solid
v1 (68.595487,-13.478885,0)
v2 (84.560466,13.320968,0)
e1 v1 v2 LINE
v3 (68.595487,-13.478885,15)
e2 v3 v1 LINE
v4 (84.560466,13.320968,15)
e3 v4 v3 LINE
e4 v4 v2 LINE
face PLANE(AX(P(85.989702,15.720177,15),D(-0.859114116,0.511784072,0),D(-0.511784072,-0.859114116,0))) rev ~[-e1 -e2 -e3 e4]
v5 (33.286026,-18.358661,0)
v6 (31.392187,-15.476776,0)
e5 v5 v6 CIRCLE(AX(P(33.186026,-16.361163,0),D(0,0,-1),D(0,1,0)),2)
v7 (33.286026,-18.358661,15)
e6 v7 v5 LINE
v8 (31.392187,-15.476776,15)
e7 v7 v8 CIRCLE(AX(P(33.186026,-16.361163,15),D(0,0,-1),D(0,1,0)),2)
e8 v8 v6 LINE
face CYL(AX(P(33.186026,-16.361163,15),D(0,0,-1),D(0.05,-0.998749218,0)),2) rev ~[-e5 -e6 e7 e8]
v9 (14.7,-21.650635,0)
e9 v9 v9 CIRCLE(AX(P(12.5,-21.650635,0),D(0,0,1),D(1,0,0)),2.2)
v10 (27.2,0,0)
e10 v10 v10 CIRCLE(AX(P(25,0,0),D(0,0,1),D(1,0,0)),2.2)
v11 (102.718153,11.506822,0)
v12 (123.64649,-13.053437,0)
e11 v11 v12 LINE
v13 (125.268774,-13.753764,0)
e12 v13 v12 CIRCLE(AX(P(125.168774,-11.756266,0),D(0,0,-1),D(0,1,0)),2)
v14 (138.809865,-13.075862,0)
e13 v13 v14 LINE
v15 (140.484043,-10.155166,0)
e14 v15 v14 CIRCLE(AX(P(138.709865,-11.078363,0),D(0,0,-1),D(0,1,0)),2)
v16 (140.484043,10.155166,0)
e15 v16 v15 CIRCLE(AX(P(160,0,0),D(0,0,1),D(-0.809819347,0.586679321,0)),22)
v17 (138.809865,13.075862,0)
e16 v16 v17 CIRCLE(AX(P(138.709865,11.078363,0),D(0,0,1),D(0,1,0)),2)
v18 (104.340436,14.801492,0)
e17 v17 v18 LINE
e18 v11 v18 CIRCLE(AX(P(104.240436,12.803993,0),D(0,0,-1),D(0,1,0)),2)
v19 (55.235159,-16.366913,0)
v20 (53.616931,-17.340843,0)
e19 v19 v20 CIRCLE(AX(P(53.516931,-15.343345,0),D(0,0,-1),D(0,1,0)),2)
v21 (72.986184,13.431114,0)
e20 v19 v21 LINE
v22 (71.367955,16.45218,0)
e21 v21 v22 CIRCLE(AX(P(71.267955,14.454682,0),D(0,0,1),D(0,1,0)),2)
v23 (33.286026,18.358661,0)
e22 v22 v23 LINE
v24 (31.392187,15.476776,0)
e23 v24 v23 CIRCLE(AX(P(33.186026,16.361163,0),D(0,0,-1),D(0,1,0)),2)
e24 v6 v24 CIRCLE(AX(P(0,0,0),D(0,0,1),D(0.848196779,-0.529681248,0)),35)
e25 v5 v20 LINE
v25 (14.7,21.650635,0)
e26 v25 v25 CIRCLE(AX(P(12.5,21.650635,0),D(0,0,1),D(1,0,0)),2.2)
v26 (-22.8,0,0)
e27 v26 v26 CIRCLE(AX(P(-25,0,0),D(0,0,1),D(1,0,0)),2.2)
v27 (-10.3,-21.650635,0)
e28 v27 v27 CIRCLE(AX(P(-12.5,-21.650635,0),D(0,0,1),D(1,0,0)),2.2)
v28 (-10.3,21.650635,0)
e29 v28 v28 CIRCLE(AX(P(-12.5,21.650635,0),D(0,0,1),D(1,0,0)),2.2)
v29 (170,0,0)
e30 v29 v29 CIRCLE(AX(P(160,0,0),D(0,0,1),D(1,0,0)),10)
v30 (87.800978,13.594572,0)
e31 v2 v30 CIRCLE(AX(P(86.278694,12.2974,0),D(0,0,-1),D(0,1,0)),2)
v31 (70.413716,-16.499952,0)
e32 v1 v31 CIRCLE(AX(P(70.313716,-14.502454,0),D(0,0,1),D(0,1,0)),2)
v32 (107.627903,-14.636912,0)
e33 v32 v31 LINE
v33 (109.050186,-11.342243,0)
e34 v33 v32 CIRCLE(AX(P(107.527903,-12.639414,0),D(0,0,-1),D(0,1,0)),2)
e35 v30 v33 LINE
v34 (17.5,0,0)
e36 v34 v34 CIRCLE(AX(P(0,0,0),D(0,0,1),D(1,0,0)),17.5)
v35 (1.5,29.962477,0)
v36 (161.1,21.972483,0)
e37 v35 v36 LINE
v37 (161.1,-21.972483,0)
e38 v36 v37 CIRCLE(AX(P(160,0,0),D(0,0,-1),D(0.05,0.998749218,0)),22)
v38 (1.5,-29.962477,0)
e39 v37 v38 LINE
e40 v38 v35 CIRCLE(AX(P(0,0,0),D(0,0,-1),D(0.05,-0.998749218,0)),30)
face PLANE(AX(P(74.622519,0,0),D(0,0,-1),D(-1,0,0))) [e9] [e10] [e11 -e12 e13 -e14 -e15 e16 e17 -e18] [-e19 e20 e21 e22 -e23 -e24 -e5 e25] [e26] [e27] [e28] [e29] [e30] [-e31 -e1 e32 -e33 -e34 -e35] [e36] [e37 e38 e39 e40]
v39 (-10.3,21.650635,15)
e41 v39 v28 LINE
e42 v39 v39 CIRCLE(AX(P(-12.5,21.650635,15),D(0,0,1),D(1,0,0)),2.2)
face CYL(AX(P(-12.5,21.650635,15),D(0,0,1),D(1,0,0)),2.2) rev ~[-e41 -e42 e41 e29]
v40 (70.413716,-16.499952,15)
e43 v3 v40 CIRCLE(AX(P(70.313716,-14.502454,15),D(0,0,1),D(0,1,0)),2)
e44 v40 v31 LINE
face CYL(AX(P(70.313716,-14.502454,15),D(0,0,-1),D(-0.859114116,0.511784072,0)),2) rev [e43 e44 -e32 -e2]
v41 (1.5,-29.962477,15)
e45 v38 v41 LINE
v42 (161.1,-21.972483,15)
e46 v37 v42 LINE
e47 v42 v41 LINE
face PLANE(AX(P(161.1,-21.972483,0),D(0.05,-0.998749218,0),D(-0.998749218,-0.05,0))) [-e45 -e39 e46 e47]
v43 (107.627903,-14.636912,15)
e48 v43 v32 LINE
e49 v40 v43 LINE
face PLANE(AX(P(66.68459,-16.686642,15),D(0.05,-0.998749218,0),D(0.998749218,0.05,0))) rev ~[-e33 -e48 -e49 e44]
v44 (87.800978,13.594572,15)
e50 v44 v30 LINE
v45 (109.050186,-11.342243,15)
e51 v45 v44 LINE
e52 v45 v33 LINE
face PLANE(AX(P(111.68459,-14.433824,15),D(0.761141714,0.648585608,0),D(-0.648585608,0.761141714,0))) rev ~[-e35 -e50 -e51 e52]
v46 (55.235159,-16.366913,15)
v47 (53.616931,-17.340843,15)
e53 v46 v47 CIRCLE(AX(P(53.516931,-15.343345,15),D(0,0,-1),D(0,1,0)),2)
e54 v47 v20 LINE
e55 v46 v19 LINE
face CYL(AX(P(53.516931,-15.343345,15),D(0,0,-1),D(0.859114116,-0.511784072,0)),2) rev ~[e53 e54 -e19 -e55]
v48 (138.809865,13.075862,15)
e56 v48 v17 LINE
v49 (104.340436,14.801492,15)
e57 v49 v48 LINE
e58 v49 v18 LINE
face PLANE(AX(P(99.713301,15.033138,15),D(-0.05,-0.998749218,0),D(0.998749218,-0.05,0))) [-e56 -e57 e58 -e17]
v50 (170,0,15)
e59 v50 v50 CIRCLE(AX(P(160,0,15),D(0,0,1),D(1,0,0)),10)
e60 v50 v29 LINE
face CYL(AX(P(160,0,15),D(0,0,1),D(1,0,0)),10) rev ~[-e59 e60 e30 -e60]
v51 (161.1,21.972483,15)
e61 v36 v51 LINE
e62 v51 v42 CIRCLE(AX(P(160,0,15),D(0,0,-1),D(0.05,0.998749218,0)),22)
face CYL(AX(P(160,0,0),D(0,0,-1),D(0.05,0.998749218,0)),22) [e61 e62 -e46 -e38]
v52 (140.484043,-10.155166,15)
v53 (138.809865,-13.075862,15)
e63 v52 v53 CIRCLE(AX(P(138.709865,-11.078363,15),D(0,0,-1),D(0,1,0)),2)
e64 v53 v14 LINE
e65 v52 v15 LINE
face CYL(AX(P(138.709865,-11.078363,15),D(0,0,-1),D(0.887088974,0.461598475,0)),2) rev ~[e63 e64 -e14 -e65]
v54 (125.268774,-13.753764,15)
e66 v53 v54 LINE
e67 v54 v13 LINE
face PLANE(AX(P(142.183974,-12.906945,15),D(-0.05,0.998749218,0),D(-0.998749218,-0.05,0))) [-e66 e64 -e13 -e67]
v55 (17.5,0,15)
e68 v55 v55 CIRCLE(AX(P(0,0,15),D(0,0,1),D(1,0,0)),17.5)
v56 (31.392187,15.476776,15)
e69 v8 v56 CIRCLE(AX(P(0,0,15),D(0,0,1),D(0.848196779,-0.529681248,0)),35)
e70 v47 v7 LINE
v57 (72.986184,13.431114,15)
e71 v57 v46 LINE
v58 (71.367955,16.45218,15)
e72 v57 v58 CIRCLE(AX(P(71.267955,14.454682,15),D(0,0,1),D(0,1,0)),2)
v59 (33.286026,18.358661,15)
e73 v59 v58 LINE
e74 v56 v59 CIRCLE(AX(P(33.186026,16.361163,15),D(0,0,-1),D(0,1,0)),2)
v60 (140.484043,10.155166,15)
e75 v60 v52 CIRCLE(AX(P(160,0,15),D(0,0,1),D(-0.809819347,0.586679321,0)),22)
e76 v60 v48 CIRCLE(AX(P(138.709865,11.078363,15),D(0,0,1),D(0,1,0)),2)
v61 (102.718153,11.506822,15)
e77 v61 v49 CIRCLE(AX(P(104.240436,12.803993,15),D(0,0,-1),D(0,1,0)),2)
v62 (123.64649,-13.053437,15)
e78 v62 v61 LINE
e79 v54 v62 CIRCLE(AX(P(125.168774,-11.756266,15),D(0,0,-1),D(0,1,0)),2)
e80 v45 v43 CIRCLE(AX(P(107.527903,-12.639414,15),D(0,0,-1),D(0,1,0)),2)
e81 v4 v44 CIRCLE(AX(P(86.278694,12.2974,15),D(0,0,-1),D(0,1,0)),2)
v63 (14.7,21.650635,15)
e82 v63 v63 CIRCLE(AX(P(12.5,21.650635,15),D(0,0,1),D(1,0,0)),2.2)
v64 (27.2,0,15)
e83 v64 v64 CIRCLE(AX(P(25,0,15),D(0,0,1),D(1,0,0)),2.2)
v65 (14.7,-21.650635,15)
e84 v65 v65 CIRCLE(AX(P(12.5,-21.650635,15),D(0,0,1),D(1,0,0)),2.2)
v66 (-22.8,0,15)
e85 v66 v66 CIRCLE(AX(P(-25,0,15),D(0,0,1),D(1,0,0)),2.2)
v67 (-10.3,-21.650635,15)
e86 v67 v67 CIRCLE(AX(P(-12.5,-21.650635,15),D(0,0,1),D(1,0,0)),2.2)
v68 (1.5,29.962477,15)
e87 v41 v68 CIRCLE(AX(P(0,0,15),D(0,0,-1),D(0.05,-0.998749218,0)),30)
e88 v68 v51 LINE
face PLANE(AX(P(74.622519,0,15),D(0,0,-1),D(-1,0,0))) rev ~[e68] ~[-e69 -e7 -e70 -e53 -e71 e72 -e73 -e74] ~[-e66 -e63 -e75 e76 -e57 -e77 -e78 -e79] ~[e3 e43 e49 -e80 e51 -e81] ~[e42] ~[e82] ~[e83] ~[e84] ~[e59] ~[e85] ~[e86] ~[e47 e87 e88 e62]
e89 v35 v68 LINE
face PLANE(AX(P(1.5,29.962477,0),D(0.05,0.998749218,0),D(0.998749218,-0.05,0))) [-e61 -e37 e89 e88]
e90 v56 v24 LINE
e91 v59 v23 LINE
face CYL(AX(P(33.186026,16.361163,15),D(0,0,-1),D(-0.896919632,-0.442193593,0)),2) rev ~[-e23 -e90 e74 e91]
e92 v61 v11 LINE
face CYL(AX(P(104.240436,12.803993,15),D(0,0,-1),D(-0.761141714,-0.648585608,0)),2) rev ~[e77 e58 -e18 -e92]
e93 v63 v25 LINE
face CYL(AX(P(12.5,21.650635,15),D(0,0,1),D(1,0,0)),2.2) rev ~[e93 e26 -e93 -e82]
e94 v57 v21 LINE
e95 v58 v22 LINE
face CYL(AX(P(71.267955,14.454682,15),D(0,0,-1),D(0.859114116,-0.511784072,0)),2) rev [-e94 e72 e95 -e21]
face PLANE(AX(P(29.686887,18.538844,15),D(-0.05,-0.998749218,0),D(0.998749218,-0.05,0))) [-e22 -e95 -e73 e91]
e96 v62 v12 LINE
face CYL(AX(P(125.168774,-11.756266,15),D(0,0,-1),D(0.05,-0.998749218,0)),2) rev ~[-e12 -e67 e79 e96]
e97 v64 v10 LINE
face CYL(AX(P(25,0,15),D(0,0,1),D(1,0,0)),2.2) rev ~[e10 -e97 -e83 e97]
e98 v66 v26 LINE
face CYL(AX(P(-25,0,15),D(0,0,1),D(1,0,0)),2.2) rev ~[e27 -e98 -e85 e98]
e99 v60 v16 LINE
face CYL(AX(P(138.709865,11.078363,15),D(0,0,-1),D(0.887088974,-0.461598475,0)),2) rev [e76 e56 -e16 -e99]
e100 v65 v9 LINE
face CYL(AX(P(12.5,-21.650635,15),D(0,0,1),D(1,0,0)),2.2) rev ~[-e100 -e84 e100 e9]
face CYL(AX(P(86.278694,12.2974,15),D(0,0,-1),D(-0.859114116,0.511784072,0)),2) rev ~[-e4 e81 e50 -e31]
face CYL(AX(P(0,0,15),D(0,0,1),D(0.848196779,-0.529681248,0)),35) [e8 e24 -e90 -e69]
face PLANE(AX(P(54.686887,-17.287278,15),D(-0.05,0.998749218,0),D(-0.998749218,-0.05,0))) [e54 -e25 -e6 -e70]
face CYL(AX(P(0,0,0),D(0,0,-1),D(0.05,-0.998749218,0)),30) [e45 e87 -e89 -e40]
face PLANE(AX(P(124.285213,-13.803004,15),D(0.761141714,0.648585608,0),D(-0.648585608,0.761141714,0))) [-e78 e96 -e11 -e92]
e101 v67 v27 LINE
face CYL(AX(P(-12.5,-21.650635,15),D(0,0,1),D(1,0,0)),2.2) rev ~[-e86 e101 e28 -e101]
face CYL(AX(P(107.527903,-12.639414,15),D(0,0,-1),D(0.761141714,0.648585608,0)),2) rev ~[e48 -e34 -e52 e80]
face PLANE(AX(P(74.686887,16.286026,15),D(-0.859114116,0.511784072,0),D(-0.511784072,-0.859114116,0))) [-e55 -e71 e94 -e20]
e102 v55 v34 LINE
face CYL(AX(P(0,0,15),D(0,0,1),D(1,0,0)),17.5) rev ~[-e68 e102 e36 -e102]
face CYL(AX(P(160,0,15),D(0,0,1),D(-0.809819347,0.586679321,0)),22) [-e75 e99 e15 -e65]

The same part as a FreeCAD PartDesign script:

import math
import FreeCAD as App
import Part
import Sketcher
from FreeCAD import Vector


def edges_at(feature, points):
    """Names of the edges that pass closest to the given points."""
    edges = feature.Shape.Edges
    near = lambda p: min(range(len(edges)), key=lambda i: edges[i].distToShape(Part.Vertex(*p))[0])
    return sorted({f"Edge{near(p) + 1}" for p in points})


def add_polygon(sketch, points):
    """Adds a closed chain of lines whose ends are joined by coincident constraints."""
    first, n = sketch.GeometryCount, len(points)
    for a, b in zip(points, points[1:] + points[:1]):
        sketch.addGeometry(Part.LineSegment(App.Vector(*a, 0), App.Vector(*b, 0)), False)
    for i in range(n):
        sketch.addConstraint(Sketcher.Constraint("Coincident", first + i, 2, first + (i + 1) % n, 1))

doc = App.newDocument("Part")
body = doc.addObject("PartDesign::Body", "Body")

# Sketch on XY plane
sketch1 = doc.addObject("Sketcher::SketchObject", "Sketch")
body.addObject(sketch1)
sketch1.AttachmentSupport = (doc.XY_Plane, [""])
sketch1.MapMode = "FlatFace"
sketch1.addGeometry([
    Part.LineSegment(Vector(161, 22, 0), Vector(2, 30, 0)),
    Part.ArcOfCircle(Part.Circle(Vector(0, 0, 0), Vector(0, 0, 1), 30), math.radians(87), math.radians(273)),
    Part.LineSegment(Vector(2, -30, 0), Vector(161, -22, 0)),
    Part.ArcOfCircle(Part.Circle(Vector(160, 0, 0), Vector(0, 0, 1), 22), math.radians(-87), math.radians(87)),
], False)
sketch1.addConstraint([
    Sketcher.Constraint("Tangent", 0, 2, 1, 1),
    Sketcher.Constraint("Tangent", 1, 2, 2, 1),
    Sketcher.Constraint("Tangent", 2, 2, 3, 1),
    Sketcher.Constraint("Tangent", 3, 2, 0, 1),
    Sketcher.Constraint("Coincident", 1, 3, -1, 1),
    Sketcher.Constraint("PointOnObject", 3, 3, -1),
    Sketcher.Constraint("Radius", 1, 30.0),
    Sketcher.Constraint("Radius", 3, 22.0),
    Sketcher.Constraint("DistanceX", -1, 1, 3, 3, 160.0),
])
pad1 = doc.addObject("PartDesign::Pad", "Pad")
body.addObject(pad1)
pad1.Profile = sketch1
pad1.Length = 15

# Sketch on XY plane
sketch2 = doc.addObject("Sketcher::SketchObject", "Sketch001")
body.addObject(sketch2)
sketch2.AttachmentSupport = (doc.XY_Plane, [""])
sketch2.MapMode = "FlatFace"
sketch2.AttachmentOffset = App.Placement(Vector(0, 0, 15), App.Rotation())
sketch2.addGeometry([
    Part.Circle(Vector(-25, 0, 0), Vector(0, 0, 1), 2.2),  # 0
    Part.Circle(Vector(-12.5, 21.7, 0), Vector(0, 0, 1), 2.2),  # 1
    Part.Circle(Vector(12.5, 21.7, 0), Vector(0, 0, 1), 2.2),  # 2
    Part.Circle(Vector(25, 0, 0), Vector(0, 0, 1), 2.2),  # 3
    Part.Circle(Vector(12.5, -21.7, 0), Vector(0, 0, 1), 2.2),  # 4
    Part.Circle(Vector(-12.5, -21.7, 0), Vector(0, 0, 1), 2.2),  # 5
    Part.Circle(Vector(160, 0, 0), Vector(0, 0, 1), 10),  # 6
], False)
sketch2.addConstraint([
    Sketcher.Constraint("Equal", 0, 1),
    Sketcher.Constraint("Equal", 1, 2),
    Sketcher.Constraint("Equal", 2, 3),
    Sketcher.Constraint("Equal", 3, 4),
    Sketcher.Constraint("Equal", 4, 5),
    Sketcher.Constraint("Symmetric", 0, 3, 3, 3, -1, 1),
    Sketcher.Constraint("Symmetric", 1, 3, 4, 3, -1, 1),
    Sketcher.Constraint("Symmetric", 2, 3, 5, 3, -1, 1),
    Sketcher.Constraint("Symmetric", 1, 3, 2, 3, -2),
    Sketcher.Constraint("PointOnObject", 0, 3, -1),
    Sketcher.Constraint("PointOnObject", 6, 3, -1),
    Sketcher.Constraint("Diameter", 6, 20.0),
    Sketcher.Constraint("Diameter", 0, 4.4),
    Sketcher.Constraint("DistanceX", 0, 3, -1, 1, 25.0),
    Sketcher.Constraint("DistanceX", -1, 1, 6, 3, 160.0),
    Sketcher.Constraint("DistanceX", 1, 3, 2, 3, 25.0),
    Sketcher.Constraint("DistanceY", 4, 3, 2, 3, 43.30127),
])
pocket1 = doc.addObject("PartDesign::Pocket", "Pocket")
body.addObject(pocket1)
pocket1.Profile = sketch2
pocket1.Type = "ThroughAll"

# Sketch on XY plane
sketch3 = doc.addObject("Sketcher::SketchObject", "Sketch002")
body.addObject(sketch3)
sketch3.AttachmentSupport = (doc.XY_Plane, [""])
sketch3.MapMode = "FlatFace"
sketch3.AttachmentOffset = App.Placement(Vector(0, 0, 15), App.Rotation())
sketch3.addGeometry(Part.Circle(Vector(0, 0, 0), Vector(0, 0, 1), 18), False)  # 0
sketch3.addGeometry(Part.LineSegment(Vector(75, 16, 0), Vector(30, 19, 0)), False)  # 1
sketch3.addGeometry(Part.ArcOfCircle(Part.Circle(Vector(0, 0, 0), Vector(0, 0, 1), 35), math.radians(-32), math.radians(32)), False)  # 2
sketch3.addGeometry(Part.LineSegment(Vector(30, -19, 0), Vector(55, -17, 0)), False)  # 3
sketch3.addGeometry(Part.LineSegment(Vector(55, -17, 0), Vector(75, 16, 0)), False)  # 4
add_polygon(sketch3, [(86, 16), (67, -17), (112, -14)])  # lines 5-7
sketch3.addGeometry(Part.LineSegment(Vector(142, 13, 0), Vector(100, 15, 0)), False)  # 8
sketch3.addGeometry(Part.LineSegment(Vector(100, 15, 0), Vector(124, -14, 0)), False)  # 9
sketch3.addGeometry(Part.LineSegment(Vector(124, -14, 0), Vector(142, -13, 0)), False)  # 10
sketch3.addGeometry(Part.ArcOfCircle(Part.Circle(Vector(160, 0, 0), Vector(0, 0, 1), 22), math.radians(144), math.radians(216)), False)  # 11
sketch3.addConstraint([
    Sketcher.Constraint("Coincident", 1, 2, 2, 2),
    Sketcher.Constraint("Coincident", 2, 1, 3, 1),
    Sketcher.Constraint("Coincident", 3, 2, 4, 1),
    Sketcher.Constraint("Coincident", 4, 2, 1, 1),
    Sketcher.Constraint("Coincident", 8, 2, 9, 1),
    Sketcher.Constraint("Coincident", 9, 2, 10, 1),
    Sketcher.Constraint("Coincident", 10, 2, 11, 2),
    Sketcher.Constraint("Coincident", 11, 1, 8, 1),
    Sketcher.Constraint("Coincident", 0, 3, -1, 1),
    Sketcher.Constraint("Coincident", 2, 3, -1, 1),
    Sketcher.Constraint("Symmetric", 10, 2, 11, 1, -1),
    Sketcher.Constraint("Parallel", 4, 5),
    Sketcher.Constraint("Parallel", 3, 6),
    Sketcher.Constraint("Parallel", 1, 8),
    Sketcher.Constraint("Parallel", 7, 9),
    Sketcher.Constraint("Parallel", 6, 10),
    Sketcher.Constraint("Vertical", 1, 2, 2, 1),
    Sketcher.Constraint("Equal", 1, 6),
    Sketcher.Constraint("Diameter", 0, 35.0),
    Sketcher.Constraint("Radius", 2, 35.0),
    Sketcher.Constraint("Radius", 11, 22.0),
    Sketcher.Constraint("DistanceX", -1, 1, 11, 3, 160.0),
    Sketcher.Constraint("DistanceX", 2, 1, 3, 2, 25.0),
    Sketcher.Constraint("DistanceX", 3, 2, 4, 2, 20.0),
    Sketcher.Constraint("DistanceX", 5, 2, 6, 2, 45.0),
    Sketcher.Constraint("DistanceY", 6, 2, 7, 2, 30.154001),
    Sketcher.Constraint("DistanceX", -1, 1, 8, 2, 99.713301),
    Sketcher.Constraint("DistanceY", 2, 1, 5, 2, 1.852202),
    Sketcher.Constraint("DistanceX", 7, 2, 8, 2, 13.723599),
    Sketcher.Constraint("Distance", 3, 25.031309),
    Sketcher.Constraint("Distance", 4, 39.078981),
    Sketcher.Constraint("Distance", 8, 42.523861),
])
pocket2 = doc.addObject("PartDesign::Pocket", "Pocket001")
body.addObject(pocket2)
pocket2.Profile = sketch3
pocket2.Type = "ThroughAll"
doc.recompute()

fillet = doc.addObject("PartDesign::Fillet", "Fillet")
body.addObject(fillet)
fillet.Base = (pocket2, edges_at(pocket2, [
    (124.285, -13.803, 7.5),
    (99.713, 15.033, 7.5),
    (142.184, 12.907, 7.5),
    (142.184, -12.907, 7.5),
    (85.99, 15.72, 7.5),
    (111.685, -14.434, 7.5),
    (66.685, -16.687, 7.5),
    (74.687, 16.286, 7.5),
    (54.687, -17.287, 7.5),
    (29.687, -18.539, 7.5),
    (29.687, 18.539, 7.5),
]))
fillet.Radius = 2

doc.recompute()
